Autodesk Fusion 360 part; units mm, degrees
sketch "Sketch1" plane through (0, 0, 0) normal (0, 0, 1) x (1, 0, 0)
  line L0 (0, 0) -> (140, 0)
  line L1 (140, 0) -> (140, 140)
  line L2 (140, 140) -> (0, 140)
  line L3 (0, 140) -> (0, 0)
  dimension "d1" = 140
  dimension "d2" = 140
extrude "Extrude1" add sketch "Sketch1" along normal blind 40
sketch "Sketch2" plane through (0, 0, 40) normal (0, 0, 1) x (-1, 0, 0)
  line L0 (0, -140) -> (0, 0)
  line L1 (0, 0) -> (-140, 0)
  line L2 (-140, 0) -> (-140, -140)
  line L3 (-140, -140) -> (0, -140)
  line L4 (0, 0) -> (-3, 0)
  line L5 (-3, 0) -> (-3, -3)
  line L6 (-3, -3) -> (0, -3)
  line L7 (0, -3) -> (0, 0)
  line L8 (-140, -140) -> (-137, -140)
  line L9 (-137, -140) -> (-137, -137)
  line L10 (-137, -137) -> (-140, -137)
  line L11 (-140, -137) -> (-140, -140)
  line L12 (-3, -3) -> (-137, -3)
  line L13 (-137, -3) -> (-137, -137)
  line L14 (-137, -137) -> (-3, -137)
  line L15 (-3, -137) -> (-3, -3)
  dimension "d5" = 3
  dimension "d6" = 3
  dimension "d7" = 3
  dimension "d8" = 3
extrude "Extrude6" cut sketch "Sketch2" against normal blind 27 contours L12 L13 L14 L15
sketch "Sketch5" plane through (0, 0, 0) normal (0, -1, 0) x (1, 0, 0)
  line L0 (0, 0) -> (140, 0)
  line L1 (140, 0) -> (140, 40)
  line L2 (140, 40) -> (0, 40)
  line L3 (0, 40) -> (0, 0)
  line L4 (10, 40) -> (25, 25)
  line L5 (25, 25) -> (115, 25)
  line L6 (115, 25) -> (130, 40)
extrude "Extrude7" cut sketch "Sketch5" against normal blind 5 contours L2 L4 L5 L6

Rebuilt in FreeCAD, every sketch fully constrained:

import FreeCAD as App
import Part
import Sketcher
Q = App.Units.Quantity

doc = App.newDocument("Part")
body = doc.addObject("PartDesign::Body", "Body")

sketch1 = doc.addObject("Sketcher::SketchObject", "Sketch")
body.addObject(sketch1)
sketch1.AttachmentSupport = (doc.XY_Plane, [""])
sketch1.MapMode = "FlatFace"
sketch1.addGeometry(Part.LineSegment(App.Vector(0, 140, 0), App.Vector(0, 0, 0)), False)
sketch1.addGeometry(Part.LineSegment(App.Vector(0, 0, 0), App.Vector(140, 0, 0)), False)
sketch1.addGeometry(Part.LineSegment(App.Vector(140, 0, 0), App.Vector(140, 140, 0)), False)
sketch1.addGeometry(Part.LineSegment(App.Vector(140, 140, 0), App.Vector(0, 140, 0)), False)
sketch1.addConstraint(Sketcher.Constraint("Coincident", 0, 2, 1, 1))
sketch1.addConstraint(Sketcher.Constraint("Coincident", 1, 2, 2, 1))
sketch1.addConstraint(Sketcher.Constraint("Coincident", 2, 2, 3, 1))
sketch1.addConstraint(Sketcher.Constraint("Coincident", 3, 2, 0, 1))
sketch1.addConstraint(Sketcher.Constraint("Vertical", 0))
sketch1.addConstraint(Sketcher.Constraint("Horizontal", 1))
sketch1.addConstraint(Sketcher.Constraint("Vertical", 2))
sketch1.addConstraint(Sketcher.Constraint("Horizontal", 3))
sketch1.addConstraint(Sketcher.Constraint("Coincident", 0, 2, -1, 1))
sketch1.addConstraint(Sketcher.Constraint("Equal", 3, 0))
sketch1.addConstraint(Sketcher.Constraint("DistanceX", 1, 1, 1, 2, Q("140 mm")))
pad1 = doc.addObject("PartDesign::Pad", "Pad")
body.addObject(pad1)
pad1.Profile = sketch1
pad1.Length = 40

sketch2 = doc.addObject("Sketcher::SketchObject", "Sketch001")
body.addObject(sketch2)
sketch2.AttachmentSupport = (doc.XY_Plane, [""])
sketch2.MapMode = "FlatFace"
sketch2.AttachmentOffset = App.Placement(App.Vector(0, 0, 40), App.Rotation())
sketch2.addGeometry(Part.LineSegment(App.Vector(3, 137, 0), App.Vector(3, 3, 0)), False)
sketch2.addGeometry(Part.LineSegment(App.Vector(3, 3, 0), App.Vector(137, 3, 0)), False)
sketch2.addGeometry(Part.LineSegment(App.Vector(137, 3, 0), App.Vector(137, 137, 0)), False)
sketch2.addGeometry(Part.LineSegment(App.Vector(137, 137, 0), App.Vector(3, 137, 0)), False)
sketch2.addConstraint(Sketcher.Constraint("Coincident", 0, 2, 1, 1))
sketch2.addConstraint(Sketcher.Constraint("Coincident", 1, 2, 2, 1))
sketch2.addConstraint(Sketcher.Constraint("Coincident", 2, 2, 3, 1))
sketch2.addConstraint(Sketcher.Constraint("Coincident", 3, 2, 0, 1))
sketch2.addConstraint(Sketcher.Constraint("Vertical", 0))
sketch2.addConstraint(Sketcher.Constraint("Horizontal", 1))
sketch2.addConstraint(Sketcher.Constraint("Vertical", 2))
sketch2.addConstraint(Sketcher.Constraint("Horizontal", 3))
sketch2.addConstraint(Sketcher.Constraint("Equal", 3, 0))
sketch2.addConstraint(Sketcher.Constraint("DistanceX", -1, 1, 0, 2, Q("3 mm")))
sketch2.addConstraint(Sketcher.Constraint("DistanceY", -1, 1, 0, 2, Q("3 mm")))
sketch2.addConstraint(Sketcher.Constraint("DistanceX", 1, 1, 1, 2, Q("134 mm")))
pocket1 = doc.addObject("PartDesign::Pocket", "Pocket")
body.addObject(pocket1)
pocket1.Profile = sketch2
pocket1.Length = 27

sketch3 = doc.addObject("Sketcher::SketchObject", "Sketch002")
body.addObject(sketch3)
sketch3.AttachmentSupport = (doc.XZ_Plane, [""])
sketch3.MapMode = "FlatFace"
sketch3.addGeometry(Part.LineSegment(App.Vector(130, 40, 0), App.Vector(10, 40, 0)), False)
sketch3.addGeometry(Part.LineSegment(App.Vector(10, 40, 0), App.Vector(25, 25, 0)), False)
sketch3.addGeometry(Part.LineSegment(App.Vector(25, 25, 0), App.Vector(115, 25, 0)), False)
sketch3.addGeometry(Part.LineSegment(App.Vector(115, 25, 0), App.Vector(130, 40, 0)), False)
sketch3.addConstraint(Sketcher.Constraint("Coincident", 0, 2, 1, 1))
sketch3.addConstraint(Sketcher.Constraint("Coincident", 1, 2, 2, 1))
sketch3.addConstraint(Sketcher.Constraint("Coincident", 2, 2, 3, 1))
sketch3.addConstraint(Sketcher.Constraint("Coincident", 3, 2, 0, 1))
sketch3.addConstraint(Sketcher.Constraint("Horizontal", 0))
sketch3.addConstraint(Sketcher.Constraint("Horizontal", 2))
sketch3.addConstraint(Sketcher.Constraint("Perpendicular", 1, 3))
sketch3.addConstraint(Sketcher.Constraint("Equal", 1, 3))
sketch3.addConstraint(Sketcher.Constraint("DistanceX", 0, 2, 0, 1, Q("120 mm")))
sketch3.addConstraint(Sketcher.Constraint("DistanceX", 2, 1, 2, 2, Q("90 mm")))
sketch3.addConstraint(Sketcher.Constraint("DistanceX", -1, 1, 0, 2, Q("10 mm")))
sketch3.addConstraint(Sketcher.Constraint("DistanceY", -1, 1, 0, 2, Q("40 mm")))
pocket2 = doc.addObject("PartDesign::Pocket", "Pocket001")
body.addObject(pocket2)
pocket2.Profile = sketch3
pocket2.Length = 5

doc.recompute()
